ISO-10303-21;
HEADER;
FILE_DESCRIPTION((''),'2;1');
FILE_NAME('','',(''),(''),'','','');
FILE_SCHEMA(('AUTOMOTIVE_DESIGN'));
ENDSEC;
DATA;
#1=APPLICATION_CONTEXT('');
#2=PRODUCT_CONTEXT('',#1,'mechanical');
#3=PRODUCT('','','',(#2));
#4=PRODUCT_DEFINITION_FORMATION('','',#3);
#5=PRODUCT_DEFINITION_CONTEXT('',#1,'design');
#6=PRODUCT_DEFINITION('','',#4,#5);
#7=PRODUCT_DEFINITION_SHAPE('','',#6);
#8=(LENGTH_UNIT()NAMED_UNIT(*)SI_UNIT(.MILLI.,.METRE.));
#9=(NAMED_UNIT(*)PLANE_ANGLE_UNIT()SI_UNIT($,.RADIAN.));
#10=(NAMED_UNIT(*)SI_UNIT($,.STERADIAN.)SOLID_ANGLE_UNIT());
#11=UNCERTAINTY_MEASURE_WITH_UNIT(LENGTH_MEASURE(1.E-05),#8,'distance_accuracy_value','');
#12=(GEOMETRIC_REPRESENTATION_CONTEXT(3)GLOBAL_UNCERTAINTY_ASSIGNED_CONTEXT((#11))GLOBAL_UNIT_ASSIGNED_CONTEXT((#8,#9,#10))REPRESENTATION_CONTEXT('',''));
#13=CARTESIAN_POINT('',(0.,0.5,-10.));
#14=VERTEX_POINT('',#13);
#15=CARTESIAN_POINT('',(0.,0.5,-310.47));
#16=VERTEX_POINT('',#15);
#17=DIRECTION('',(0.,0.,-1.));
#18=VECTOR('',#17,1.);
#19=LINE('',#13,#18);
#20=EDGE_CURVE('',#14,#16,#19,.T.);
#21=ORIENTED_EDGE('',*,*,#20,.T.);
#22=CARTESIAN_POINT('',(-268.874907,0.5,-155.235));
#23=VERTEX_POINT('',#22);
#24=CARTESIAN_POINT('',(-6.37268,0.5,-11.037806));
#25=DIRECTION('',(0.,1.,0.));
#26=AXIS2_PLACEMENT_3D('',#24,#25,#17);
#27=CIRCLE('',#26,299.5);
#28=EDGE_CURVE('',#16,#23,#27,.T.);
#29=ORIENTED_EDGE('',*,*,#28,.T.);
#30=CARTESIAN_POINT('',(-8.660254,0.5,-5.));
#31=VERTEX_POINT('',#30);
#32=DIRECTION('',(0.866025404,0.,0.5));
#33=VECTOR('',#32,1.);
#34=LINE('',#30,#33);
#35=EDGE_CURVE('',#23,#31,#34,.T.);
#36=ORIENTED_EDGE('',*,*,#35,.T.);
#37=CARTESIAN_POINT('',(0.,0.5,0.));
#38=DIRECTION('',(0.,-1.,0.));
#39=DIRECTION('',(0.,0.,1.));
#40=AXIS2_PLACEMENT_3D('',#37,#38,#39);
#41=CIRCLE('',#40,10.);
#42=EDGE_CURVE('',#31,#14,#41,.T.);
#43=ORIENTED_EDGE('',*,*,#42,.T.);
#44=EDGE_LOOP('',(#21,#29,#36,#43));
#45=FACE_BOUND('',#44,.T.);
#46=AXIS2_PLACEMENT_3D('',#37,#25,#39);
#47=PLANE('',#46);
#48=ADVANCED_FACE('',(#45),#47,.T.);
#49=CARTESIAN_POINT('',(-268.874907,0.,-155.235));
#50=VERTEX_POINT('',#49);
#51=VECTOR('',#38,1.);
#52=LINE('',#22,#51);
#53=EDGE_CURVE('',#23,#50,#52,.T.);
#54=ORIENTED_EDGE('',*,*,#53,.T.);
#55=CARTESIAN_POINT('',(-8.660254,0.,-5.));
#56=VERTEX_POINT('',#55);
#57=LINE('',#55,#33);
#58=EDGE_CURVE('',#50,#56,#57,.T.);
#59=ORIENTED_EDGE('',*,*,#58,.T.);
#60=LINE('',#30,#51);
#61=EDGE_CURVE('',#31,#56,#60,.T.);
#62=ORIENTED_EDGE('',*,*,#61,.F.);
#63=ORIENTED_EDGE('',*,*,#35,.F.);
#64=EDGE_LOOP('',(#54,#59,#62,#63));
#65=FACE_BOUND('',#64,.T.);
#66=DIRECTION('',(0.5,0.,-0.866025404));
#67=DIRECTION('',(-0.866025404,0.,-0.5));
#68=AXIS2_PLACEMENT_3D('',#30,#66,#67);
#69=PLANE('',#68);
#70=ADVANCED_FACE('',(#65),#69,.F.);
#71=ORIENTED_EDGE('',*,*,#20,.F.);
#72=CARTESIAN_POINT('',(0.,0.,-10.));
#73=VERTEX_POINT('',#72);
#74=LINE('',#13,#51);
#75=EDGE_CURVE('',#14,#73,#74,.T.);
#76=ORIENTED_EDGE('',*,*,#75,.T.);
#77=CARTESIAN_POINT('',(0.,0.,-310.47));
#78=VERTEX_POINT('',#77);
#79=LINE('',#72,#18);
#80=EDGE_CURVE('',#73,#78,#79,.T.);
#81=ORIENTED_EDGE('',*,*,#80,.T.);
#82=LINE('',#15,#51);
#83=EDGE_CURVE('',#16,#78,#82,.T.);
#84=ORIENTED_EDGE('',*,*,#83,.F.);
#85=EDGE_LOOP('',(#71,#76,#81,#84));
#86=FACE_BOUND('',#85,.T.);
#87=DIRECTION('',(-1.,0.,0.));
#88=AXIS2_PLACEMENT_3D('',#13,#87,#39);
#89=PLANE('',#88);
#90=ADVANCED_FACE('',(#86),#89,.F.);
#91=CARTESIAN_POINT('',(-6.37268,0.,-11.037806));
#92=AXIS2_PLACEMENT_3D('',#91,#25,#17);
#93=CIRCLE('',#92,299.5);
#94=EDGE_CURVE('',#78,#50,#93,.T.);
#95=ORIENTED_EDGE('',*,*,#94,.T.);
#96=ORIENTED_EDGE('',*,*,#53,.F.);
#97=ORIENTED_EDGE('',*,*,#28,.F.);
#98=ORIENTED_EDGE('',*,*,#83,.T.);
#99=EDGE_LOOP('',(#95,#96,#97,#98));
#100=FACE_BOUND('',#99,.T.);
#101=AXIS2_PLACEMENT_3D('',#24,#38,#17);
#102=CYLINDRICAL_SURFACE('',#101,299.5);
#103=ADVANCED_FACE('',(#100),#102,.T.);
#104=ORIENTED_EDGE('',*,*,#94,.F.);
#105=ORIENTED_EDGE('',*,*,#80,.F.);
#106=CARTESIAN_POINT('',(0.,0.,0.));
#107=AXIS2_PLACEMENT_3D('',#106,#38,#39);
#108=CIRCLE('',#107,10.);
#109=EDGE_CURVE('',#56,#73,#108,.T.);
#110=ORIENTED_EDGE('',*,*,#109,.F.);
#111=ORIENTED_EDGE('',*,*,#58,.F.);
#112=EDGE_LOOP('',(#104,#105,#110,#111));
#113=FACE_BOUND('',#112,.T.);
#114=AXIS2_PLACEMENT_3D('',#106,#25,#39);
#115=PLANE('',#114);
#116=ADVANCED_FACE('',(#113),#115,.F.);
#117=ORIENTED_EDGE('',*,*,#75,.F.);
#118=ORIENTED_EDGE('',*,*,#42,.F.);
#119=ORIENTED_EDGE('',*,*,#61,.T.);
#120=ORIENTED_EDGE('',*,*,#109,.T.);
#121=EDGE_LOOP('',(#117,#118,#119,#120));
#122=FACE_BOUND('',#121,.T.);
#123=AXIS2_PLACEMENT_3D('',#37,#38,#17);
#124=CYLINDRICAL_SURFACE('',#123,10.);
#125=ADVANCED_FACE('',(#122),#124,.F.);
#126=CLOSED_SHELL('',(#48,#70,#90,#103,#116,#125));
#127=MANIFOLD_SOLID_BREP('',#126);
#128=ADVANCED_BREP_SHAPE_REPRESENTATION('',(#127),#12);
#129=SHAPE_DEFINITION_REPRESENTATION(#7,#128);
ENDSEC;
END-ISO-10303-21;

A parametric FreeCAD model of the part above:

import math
import FreeCAD as App
import Part
import Sketcher
Q = App.Units.Quantity

doc = App.newDocument("Part")
body = doc.addObject("PartDesign::Body", "Body")

sketch1 = body.newObject("Sketcher::SketchObject", "Sketch")
sketch1.AttachmentSupport = (doc.getObject("XZ_Plane"), [""])
sketch1.MapMode = "FlatFace"
sketch1.addGeometry(Part.LineSegment(App.Vector(0, -10, 0), App.Vector(0, -310.47, 0)), False)
sketch1.addGeometry(Part.ArcOfCircle(Part.Circle(App.Vector(-6.37268, -11.037806, 0), App.Vector(0, 0, 1), 299.5), math.radians(-151.219216), math.radians(-88.780784)), False)
sketch1.addGeometry(Part.LineSegment(App.Vector(-268.874907, -155.235, 0), App.Vector(-8.660254, -5, 0)), False)
sketch1.addGeometry(Part.ArcOfCircle(Part.Circle(App.Vector(0, 0, 0), App.Vector(0, 0, 1), 10), math.radians(-150), math.radians(-90)), False)
sketch1.addConstraint(Sketcher.Constraint("Coincident", 0, 2, 1, 2))
sketch1.addConstraint(Sketcher.Constraint("Coincident", 1, 1, 2, 1))
sketch1.addConstraint(Sketcher.Constraint("Coincident", 2, 2, 3, 1))
sketch1.addConstraint(Sketcher.Constraint("Coincident", 3, 2, 0, 1))
sketch1.addConstraint(Sketcher.Constraint("Vertical", 0))
sketch1.addConstraint(Sketcher.Constraint("Coincident", 3, 3, -1, 1))
sketch1.addConstraint(Sketcher.Constraint("PointOnObject", 0, 2, -2))
sketch1.addConstraint(Sketcher.Constraint("Radius", 3, Q("10 mm")))
sketch1.addConstraint(Sketcher.Constraint("Radius", 1, Q("299.5 mm")))
sketch1.addConstraint(Sketcher.Constraint("Angle", 2, Q("30 deg")))
sketch1.addConstraint(Sketcher.Constraint("DistanceY", 2, 2, -1, 1, Q("5 mm")))
sketch1.addConstraint(Sketcher.Constraint("DistanceY", 0, 2, 0, 1, Q("300.47 mm")))
sketch1.addConstraint(Sketcher.Constraint("Distance", 2, Q("300.47 mm")))
pad1 = body.newObject("PartDesign::Pad", "Pad")
pad1.Profile = sketch1
pad1.Length = 0.5
pad1.Reversed = True

doc.recompute()
